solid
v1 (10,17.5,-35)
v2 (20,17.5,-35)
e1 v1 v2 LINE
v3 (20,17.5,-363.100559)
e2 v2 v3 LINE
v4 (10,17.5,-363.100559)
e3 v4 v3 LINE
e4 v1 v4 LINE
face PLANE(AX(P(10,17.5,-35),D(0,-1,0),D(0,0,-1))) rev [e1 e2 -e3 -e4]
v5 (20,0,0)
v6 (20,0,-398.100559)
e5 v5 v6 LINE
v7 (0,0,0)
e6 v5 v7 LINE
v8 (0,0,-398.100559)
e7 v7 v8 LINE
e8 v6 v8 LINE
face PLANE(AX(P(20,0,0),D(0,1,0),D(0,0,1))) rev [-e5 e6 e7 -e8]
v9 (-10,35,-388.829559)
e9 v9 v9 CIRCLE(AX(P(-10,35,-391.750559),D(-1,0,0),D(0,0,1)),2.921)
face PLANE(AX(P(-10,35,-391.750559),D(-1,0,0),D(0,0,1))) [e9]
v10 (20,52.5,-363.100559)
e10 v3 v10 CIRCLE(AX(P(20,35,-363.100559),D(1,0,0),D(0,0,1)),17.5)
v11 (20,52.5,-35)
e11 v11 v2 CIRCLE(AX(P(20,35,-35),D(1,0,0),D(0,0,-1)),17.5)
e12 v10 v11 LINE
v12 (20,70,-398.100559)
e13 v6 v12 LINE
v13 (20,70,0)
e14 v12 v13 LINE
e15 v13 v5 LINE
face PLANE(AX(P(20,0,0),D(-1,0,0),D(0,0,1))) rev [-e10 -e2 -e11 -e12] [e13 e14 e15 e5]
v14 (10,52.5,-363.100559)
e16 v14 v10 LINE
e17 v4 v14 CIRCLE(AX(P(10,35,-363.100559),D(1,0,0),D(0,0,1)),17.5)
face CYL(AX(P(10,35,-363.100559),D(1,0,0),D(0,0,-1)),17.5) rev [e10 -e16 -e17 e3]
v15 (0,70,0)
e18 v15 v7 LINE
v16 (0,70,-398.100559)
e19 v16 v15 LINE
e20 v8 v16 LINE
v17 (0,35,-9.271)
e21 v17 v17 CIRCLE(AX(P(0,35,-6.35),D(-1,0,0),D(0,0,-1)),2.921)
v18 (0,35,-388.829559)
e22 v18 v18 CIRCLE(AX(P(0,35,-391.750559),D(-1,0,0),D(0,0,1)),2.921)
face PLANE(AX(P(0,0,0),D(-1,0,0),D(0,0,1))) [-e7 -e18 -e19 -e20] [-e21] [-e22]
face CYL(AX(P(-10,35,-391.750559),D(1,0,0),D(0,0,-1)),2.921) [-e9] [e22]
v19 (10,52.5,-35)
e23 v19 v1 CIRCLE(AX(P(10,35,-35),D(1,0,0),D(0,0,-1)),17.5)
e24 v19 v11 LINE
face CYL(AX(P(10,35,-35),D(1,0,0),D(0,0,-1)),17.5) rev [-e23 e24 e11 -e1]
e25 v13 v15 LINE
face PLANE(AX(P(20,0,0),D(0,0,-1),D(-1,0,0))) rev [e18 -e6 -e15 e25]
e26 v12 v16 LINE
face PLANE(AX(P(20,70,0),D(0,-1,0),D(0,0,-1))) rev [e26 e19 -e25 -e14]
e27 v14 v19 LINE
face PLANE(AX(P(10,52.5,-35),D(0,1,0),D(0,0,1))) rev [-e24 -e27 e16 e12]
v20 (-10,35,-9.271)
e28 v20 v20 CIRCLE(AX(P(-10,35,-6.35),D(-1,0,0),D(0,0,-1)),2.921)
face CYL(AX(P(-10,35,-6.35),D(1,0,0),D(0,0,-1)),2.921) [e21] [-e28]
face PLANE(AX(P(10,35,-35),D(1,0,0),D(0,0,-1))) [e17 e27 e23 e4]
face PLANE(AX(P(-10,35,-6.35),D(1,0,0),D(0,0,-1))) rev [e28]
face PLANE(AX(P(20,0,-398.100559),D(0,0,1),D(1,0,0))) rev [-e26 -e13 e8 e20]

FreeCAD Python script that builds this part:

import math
import FreeCAD as App
import Part
import Sketcher

doc = App.newDocument("Part")
params = doc.addObject("Spreadsheet::Sheet", "Params")
for row, (alias, value) in enumerate([
    ("sketch1_width", "70 mm"),
    ("pad1_length", "20 mm"),
    ("sketch2_radius", "17.5 mm"),
    ("pocket1_length", "10 mm"),
    ("pad2_length", "10 mm"),
], start=1):
    params.set(f"A{row}", alias)
    params.set(f"B{row}", "=" + value)
    params.setAlias(f"B{row}", alias)

body = doc.addObject("PartDesign::Body", "Body")

sketch1 = body.newObject("Sketcher::SketchObject", "Sketch")
sketch1.AttachmentSupport = (doc.getObject("YZ_Plane"), [""])
sketch1.MapMode = "FlatFace"
sketch1.addGeometry([
    Part.LineSegment(App.Vector(70, 0, 0), App.Vector(0, 0, 0)),
    Part.LineSegment(App.Vector(0, 0, 0), App.Vector(0, -398, 0)),
    Part.LineSegment(App.Vector(0, -398, 0), App.Vector(70, -398, 0)),
    Part.LineSegment(App.Vector(70, -398, 0), App.Vector(70, 0, 0)),
], False)
sketch1.addConstraint([
    Sketcher.Constraint("Coincident", 0, 2, 1, 1),
    Sketcher.Constraint("Coincident", 1, 2, 2, 1),
    Sketcher.Constraint("Coincident", 2, 2, 3, 1),
    Sketcher.Constraint("Coincident", 3, 2, 0, 1),
    Sketcher.Constraint("Horizontal", 0),
    Sketcher.Constraint("Vertical", 1),
    Sketcher.Constraint("Horizontal", 2),
    Sketcher.Constraint("Vertical", 3),
    Sketcher.Constraint("Coincident", 0, 2, -1, 1),
    Sketcher.Constraint("DistanceX", 0, 2, 0, 1, 70.0),
    Sketcher.Constraint("DistanceY", 1, 2, 1, 1, 398.100559),
])
sketch1.setExpression("Constraints[9]", "Params.sketch1_width")
pad1 = body.newObject("PartDesign::Pad", "Pad")
pad1.Profile = sketch1
pad1.setExpression("Length", "Params.pad1_length")

sketch2 = body.newObject("Sketcher::SketchObject", "Sketch001")
sketch2.AttachmentSupport = (doc.getObject("YZ_Plane"), [""])
sketch2.MapMode = "FlatFace"
sketch2.AttachmentOffset = App.Placement(App.Vector(0, 0, 20), App.Rotation())
sketch2.addGeometry([
    Part.LineSegment(App.Vector(52, -363, 0), App.Vector(52, -35, 0)),
    Part.ArcOfCircle(Part.Circle(App.Vector(35, -35, 0), App.Vector(0, 0, 1), 18), math.radians(0), math.radians(180)),
    Part.LineSegment(App.Vector(18, -35, 0), App.Vector(18, -363, 0)),
    Part.ArcOfCircle(Part.Circle(App.Vector(35, -363, 0), App.Vector(0, 0, 1), 18), math.radians(180), math.radians(360)),
], False)
sketch2.addConstraint([
    Sketcher.Constraint("Tangent", 0, 2, 1, 1),
    Sketcher.Constraint("Tangent", 1, 2, 2, 1),
    Sketcher.Constraint("Tangent", 2, 2, 3, 1),
    Sketcher.Constraint("Tangent", 3, 2, 0, 1),
    Sketcher.Constraint("Vertical", 0),
    Sketcher.Constraint("Vertical", 2),
    Sketcher.Constraint("Radius", 1, 17.5),
    Sketcher.Constraint("DistanceX", -1, 1, 1, 3, 35.0),
    Sketcher.Constraint("DistanceY", 1, 3, -1, 1, 35.0),
    Sketcher.Constraint("DistanceY", 0, 1, 0, 2, 328.100559),
])
sketch2.setExpression("Constraints[6]", "Params.sketch2_radius")
pocket1 = body.newObject("PartDesign::Pocket", "Pocket")
pocket1.Profile = sketch2
pocket1.setExpression("Length", "Params.pocket1_length")

sketch3 = body.newObject("Sketcher::SketchObject", "Sketch002")
sketch3.AttachmentSupport = (doc.getObject("YZ_Plane"), [""])
sketch3.MapMode = "FlatFace"
sketch3.addGeometry([
    Part.Circle(App.Vector(35, -391.8, 0), App.Vector(0, 0, 1), 2.9),
    Part.Circle(App.Vector(35, -6.3, 0), App.Vector(0, 0, 1), 2.9),
], False)
sketch3.addConstraint([
    Sketcher.Constraint("Equal", 0, 1),
    Sketcher.Constraint("Vertical", 0, 3, 1, 3),
    Sketcher.Constraint("Diameter", 0, 5.842),
    Sketcher.Constraint("DistanceX", -1, 1, 0, 3, 35.0),
    Sketcher.Constraint("DistanceY", 1, 3, -1, 1, 6.35),
    Sketcher.Constraint("DistanceY", 0, 3, -1, 1, 391.750559),
])
pad2 = body.newObject("PartDesign::Pad", "Pad001")
pad2.Profile = sketch3
pad2.setExpression("Length", "Params.pad2_length")
pad2.Reversed = True

doc.recompute()
